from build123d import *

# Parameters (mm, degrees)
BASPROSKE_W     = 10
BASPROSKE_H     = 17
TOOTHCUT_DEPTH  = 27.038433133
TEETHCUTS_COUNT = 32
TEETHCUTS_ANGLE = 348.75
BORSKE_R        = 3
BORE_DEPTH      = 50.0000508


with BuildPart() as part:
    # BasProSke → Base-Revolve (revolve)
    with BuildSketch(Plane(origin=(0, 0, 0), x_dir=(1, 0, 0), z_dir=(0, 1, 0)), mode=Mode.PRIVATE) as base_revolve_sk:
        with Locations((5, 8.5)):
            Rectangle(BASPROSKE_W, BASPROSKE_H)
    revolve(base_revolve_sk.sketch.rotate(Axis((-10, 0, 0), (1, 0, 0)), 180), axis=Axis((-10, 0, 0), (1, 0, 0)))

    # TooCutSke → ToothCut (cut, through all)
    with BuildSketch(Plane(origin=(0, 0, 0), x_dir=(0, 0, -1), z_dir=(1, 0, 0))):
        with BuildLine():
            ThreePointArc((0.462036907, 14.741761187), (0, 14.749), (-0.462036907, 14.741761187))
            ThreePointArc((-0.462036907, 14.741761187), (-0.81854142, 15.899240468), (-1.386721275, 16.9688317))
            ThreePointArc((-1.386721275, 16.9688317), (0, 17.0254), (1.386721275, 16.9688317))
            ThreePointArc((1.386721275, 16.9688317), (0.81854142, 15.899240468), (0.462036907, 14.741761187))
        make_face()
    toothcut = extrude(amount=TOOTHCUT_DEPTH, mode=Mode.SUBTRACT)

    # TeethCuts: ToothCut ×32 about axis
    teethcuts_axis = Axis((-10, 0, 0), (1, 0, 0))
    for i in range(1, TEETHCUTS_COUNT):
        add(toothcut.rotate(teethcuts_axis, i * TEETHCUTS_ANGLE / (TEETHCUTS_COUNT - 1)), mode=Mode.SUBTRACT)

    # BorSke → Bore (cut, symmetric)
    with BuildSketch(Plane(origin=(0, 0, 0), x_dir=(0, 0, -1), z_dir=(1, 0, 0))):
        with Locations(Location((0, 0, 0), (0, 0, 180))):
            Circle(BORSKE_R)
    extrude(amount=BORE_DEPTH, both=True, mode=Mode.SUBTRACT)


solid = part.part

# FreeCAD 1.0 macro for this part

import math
import FreeCAD as App
import Part
import Sketcher
from FreeCAD import Vector
Q = App.Units.Quantity

doc = App.newDocument("Part")
params = doc.addObject("Spreadsheet::Sheet", "Params")
for row, (alias, value) in enumerate([
    ("sketch1_width", "10 mm"),
    ("sketch1_height", "17 mm"),
    ("revolution_angle", "360 deg"),
    ("sketch2_radius", "6.4 mm"),
    ("sketch3_diameter", "6 mm"),
    ("pocket2_length", "100.000102 mm"),
], start=1):
    params.set(f"A{row}", alias)
    params.set(f"B{row}", "=" + value)
    params.setAlias(f"B{row}", alias)

body = doc.addObject("PartDesign::Body", "Body")

sketch1 = doc.addObject("Sketcher::SketchObject", "Sketch")
body.addObject(sketch1)
sketch1.AttachmentSupport = (doc.XZ_Plane, [""])
sketch1.MapMode = "FlatFace"
sketch1.addGeometry(Part.LineSegment(Vector(0, -17, 0), Vector(0, 0, 0)), False)
sketch1.addGeometry(Part.LineSegment(Vector(0, 0, 0), Vector(10, 0, 0)), False)
sketch1.addGeometry(Part.LineSegment(Vector(10, 0, 0), Vector(10, -17, 0)), False)
sketch1.addGeometry(Part.LineSegment(Vector(10, -17, 0), Vector(0, -17, 0)), False)
sketch1.addConstraint(Sketcher.Constraint("Coincident", 0, 2, 1, 1))
sketch1.addConstraint(Sketcher.Constraint("Coincident", 1, 2, 2, 1))
sketch1.addConstraint(Sketcher.Constraint("Coincident", 2, 2, 3, 1))
sketch1.addConstraint(Sketcher.Constraint("Coincident", 3, 2, 0, 1))
sketch1.addConstraint(Sketcher.Constraint("Vertical", 0))
sketch1.addConstraint(Sketcher.Constraint("Horizontal", 1))
sketch1.addConstraint(Sketcher.Constraint("Vertical", 2))
sketch1.addConstraint(Sketcher.Constraint("Horizontal", 3))
sketch1.addConstraint(Sketcher.Constraint("Coincident", 0, 2, -1, 1))
sketch1.addConstraint(Sketcher.Constraint("DistanceX", 1, 1, 1, 2, Q("10 mm")))
sketch1.addConstraint(Sketcher.Constraint("DistanceY", 0, 1, 0, 2, Q("17 mm")))
sketch1.setExpression("Constraints[9]", "Params.sketch1_width")
sketch1.setExpression("Constraints[10]", "Params.sketch1_height")
revolution = doc.addObject("PartDesign::Revolution", "Revolution")
body.addObject(revolution)
revolution.Profile = sketch1
revolution.ReferenceAxis = (sketch1, ["H_Axis"])
revolution.setExpression("Angle", "Params.revolution_angle")

sketch2 = doc.addObject("Sketcher::SketchObject", "Sketch001")
body.addObject(sketch2)
sketch2.AttachmentSupport = (doc.YZ_Plane, [""])
sketch2.MapMode = "FlatFace"
sketch2.addGeometry(Part.ArcOfCircle(Part.Circle(Vector(0, 0, 0), Vector(0, 0, 1), 14.7), math.radians(-1.8), math.radians(1.8)), False)
sketch2.addGeometry(Part.ArcOfCircle(Part.Circle(Vector(13.4, -6.7, 0), Vector(0, 0, 1), 6.4), math.radians(57), math.radians(78)), False)
sketch2.addGeometry(Part.ArcOfCircle(Part.Circle(Vector(0, 0, 0), Vector(0, 0, 1), 17), math.radians(-4.67), math.radians(4.67)), False)
sketch2.addGeometry(Part.ArcOfCircle(Part.Circle(Vector(13.4, 6.7, 0), Vector(0, 0, 1), 6.4), math.radians(-78), math.radians(-57)), False)
sketch2.addConstraint(Sketcher.Constraint("Coincident", 0, 1, 1, 2))
sketch2.addConstraint(Sketcher.Constraint("Coincident", 1, 1, 2, 1))
sketch2.addConstraint(Sketcher.Constraint("Coincident", 2, 2, 3, 2))
sketch2.addConstraint(Sketcher.Constraint("Coincident", 3, 1, 0, 2))
sketch2.addConstraint(Sketcher.Constraint("Coincident", 0, 3, -1, 1))
sketch2.addConstraint(Sketcher.Constraint("Coincident", 2, 3, -1, 1))
sketch2.addConstraint(Sketcher.Constraint("Equal", 1, 3))
sketch2.addConstraint(Sketcher.Constraint("Symmetric", 1, 3, 3, 3, -1))
sketch2.addConstraint(Sketcher.Constraint("Radius", 1, Q("6.4 mm")))
sketch2.addConstraint(Sketcher.Constraint("Radius", 0, Q("14.749 mm")))
sketch2.addConstraint(Sketcher.Constraint("Radius", 2, Q("17.0254 mm")))
sketch2.addConstraint(Sketcher.Constraint("DistanceX", -1, 1, 1, 3, Q("13.44508 mm")))
sketch2.addConstraint(Sketcher.Constraint("DistanceX", -1, 1, 0, 1, Q("14.741761 mm")))
sketch2.setExpression("Constraints[8]", "Params.sketch2_radius")
pocket1 = doc.addObject("PartDesign::Pocket", "Pocket")
body.addObject(pocket1)
pocket1.Profile = sketch2
pocket1.Type = "ThroughAll"
pocket1.Reversed = True
doc.recompute()

polarpattern = doc.addObject("PartDesign::PolarPattern", "PolarPattern")
body.addObject(polarpattern)
polarpattern.Originals = [pocket1]
polarpattern.Axis = (doc.X_Axis, [""])
polarpattern.Angle = 360
polarpattern.Occurrences = 32
body.Tip = polarpattern

sketch3 = doc.addObject("Sketcher::SketchObject", "Sketch002")
body.addObject(sketch3)
sketch3.AttachmentSupport = (doc.YZ_Plane, [""])
sketch3.MapMode = "FlatFace"
sketch3.addGeometry(Part.Circle(Vector(0, 0, 0), Vector(0, 0, 1), 3), False)
sketch3.addConstraint(Sketcher.Constraint("Coincident", 0, 3, -1, 1))
sketch3.addConstraint(Sketcher.Constraint("Diameter", 0, Q("6 mm")))
sketch3.setExpression("Constraints[1]", "Params.sketch3_diameter")
pocket2 = doc.addObject("PartDesign::Pocket", "Pocket001")
body.addObject(pocket2)
pocket2.Profile = sketch3
pocket2.setExpression("Length", "Params.pocket2_length")
pocket2.Midplane = True

doc.recompute()
